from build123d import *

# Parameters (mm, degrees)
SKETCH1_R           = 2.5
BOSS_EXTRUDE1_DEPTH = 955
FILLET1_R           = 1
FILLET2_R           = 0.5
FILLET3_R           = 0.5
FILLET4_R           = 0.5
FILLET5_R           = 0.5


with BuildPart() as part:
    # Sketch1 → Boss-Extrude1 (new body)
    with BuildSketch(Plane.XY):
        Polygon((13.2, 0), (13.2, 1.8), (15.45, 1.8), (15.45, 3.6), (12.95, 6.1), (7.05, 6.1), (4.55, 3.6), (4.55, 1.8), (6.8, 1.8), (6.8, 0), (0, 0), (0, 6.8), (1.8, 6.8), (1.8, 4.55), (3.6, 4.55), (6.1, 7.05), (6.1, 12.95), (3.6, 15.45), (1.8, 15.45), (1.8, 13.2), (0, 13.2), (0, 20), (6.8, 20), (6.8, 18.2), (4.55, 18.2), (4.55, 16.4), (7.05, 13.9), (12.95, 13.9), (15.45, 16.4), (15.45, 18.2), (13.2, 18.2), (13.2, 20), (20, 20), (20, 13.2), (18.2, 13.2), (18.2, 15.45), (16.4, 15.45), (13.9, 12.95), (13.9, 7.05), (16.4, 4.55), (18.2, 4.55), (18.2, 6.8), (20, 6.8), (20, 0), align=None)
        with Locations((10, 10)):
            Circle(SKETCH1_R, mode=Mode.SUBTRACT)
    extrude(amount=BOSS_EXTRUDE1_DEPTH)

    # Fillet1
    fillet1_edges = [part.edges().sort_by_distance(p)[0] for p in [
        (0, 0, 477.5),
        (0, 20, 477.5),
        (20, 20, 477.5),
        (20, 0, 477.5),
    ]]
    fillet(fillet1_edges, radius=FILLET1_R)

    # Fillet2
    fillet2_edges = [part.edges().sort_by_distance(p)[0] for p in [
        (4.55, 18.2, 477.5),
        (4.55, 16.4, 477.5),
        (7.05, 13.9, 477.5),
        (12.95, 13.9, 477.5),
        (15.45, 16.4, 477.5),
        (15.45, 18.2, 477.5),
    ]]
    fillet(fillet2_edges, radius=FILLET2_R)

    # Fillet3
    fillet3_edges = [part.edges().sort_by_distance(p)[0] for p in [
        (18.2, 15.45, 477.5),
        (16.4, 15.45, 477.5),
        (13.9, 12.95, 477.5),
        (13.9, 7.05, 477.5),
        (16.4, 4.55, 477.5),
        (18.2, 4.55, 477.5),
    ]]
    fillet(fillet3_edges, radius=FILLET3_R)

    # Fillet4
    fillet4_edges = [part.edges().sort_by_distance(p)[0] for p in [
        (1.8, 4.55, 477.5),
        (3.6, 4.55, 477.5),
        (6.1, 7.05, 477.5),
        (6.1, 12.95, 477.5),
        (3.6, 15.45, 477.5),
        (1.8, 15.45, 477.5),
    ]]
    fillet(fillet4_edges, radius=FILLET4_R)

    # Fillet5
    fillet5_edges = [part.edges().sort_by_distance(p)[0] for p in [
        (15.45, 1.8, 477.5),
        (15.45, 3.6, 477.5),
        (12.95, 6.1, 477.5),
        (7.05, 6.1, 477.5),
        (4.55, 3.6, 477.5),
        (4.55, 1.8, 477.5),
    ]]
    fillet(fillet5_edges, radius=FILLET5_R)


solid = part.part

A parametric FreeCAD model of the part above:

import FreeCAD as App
import Part
import Sketcher
from FreeCAD import Vector


def edges_at(feature, points):
    """Names of the edges that pass closest to the given points."""
    edges = feature.Shape.Edges
    near = lambda p: min(range(len(edges)), key=lambda i: edges[i].distToShape(Part.Vertex(*p))[0])
    return sorted({f"Edge{near(p) + 1}" for p in points})

doc = App.newDocument("Part")
body = doc.addObject("PartDesign::Body", "Body")

# Sketch on XY plane
sketch1 = body.newObject("Sketcher::SketchObject", "Sketch")
sketch1.AttachmentSupport = (doc.getObject("XY_Plane"), [""])
sketch1.MapMode = "FlatFace"
sketch1.addGeometry(Part.LineSegment(Vector(13.2, 1.8, 0), Vector(13.2, 0, 0)), False)
sketch1.addGeometry(Part.LineSegment(Vector(13.2, 0, 0), Vector(20, 0, 0)), False)
sketch1.addGeometry(Part.LineSegment(Vector(20, 0, 0), Vector(20, 6.8, 0)), False)
sketch1.addGeometry(Part.LineSegment(Vector(20, 6.8, 0), Vector(18.2, 6.8, 0)), False)
sketch1.addGeometry(Part.LineSegment(Vector(18.2, 6.8, 0), Vector(18.2, 4.55, 0)), False)
sketch1.addGeometry(Part.LineSegment(Vector(18.2, 4.55, 0), Vector(16.4, 4.55, 0)), False)
sketch1.addGeometry(Part.LineSegment(Vector(16.4, 4.55, 0), Vector(13.9, 7.05, 0)), False)
sketch1.addGeometry(Part.LineSegment(Vector(13.9, 7.05, 0), Vector(13.9, 12.95, 0)), False)
sketch1.addGeometry(Part.LineSegment(Vector(13.9, 12.95, 0), Vector(16.4, 15.45, 0)), False)
sketch1.addGeometry(Part.LineSegment(Vector(16.4, 15.45, 0), Vector(18.2, 15.45, 0)), False)
sketch1.addGeometry(Part.LineSegment(Vector(18.2, 15.45, 0), Vector(18.2, 13.2, 0)), False)
sketch1.addGeometry(Part.LineSegment(Vector(18.2, 13.2, 0), Vector(20, 13.2, 0)), False)
sketch1.addGeometry(Part.LineSegment(Vector(20, 13.2, 0), Vector(20, 20, 0)), False)
sketch1.addGeometry(Part.LineSegment(Vector(20, 20, 0), Vector(13.2, 20, 0)), False)
sketch1.addGeometry(Part.LineSegment(Vector(13.2, 20, 0), Vector(13.2, 18.2, 0)), False)
sketch1.addGeometry(Part.LineSegment(Vector(13.2, 18.2, 0), Vector(15.45, 18.2, 0)), False)
sketch1.addGeometry(Part.LineSegment(Vector(15.45, 18.2, 0), Vector(15.45, 16.4, 0)), False)
sketch1.addGeometry(Part.LineSegment(Vector(15.45, 16.4, 0), Vector(12.95, 13.9, 0)), False)
sketch1.addGeometry(Part.LineSegment(Vector(12.95, 13.9, 0), Vector(7.05, 13.9, 0)), False)
sketch1.addGeometry(Part.LineSegment(Vector(7.05, 13.9, 0), Vector(4.55, 16.4, 0)), False)
sketch1.addGeometry(Part.LineSegment(Vector(4.55, 16.4, 0), Vector(4.55, 18.2, 0)), False)
sketch1.addGeometry(Part.LineSegment(Vector(4.55, 18.2, 0), Vector(6.8, 18.2, 0)), False)
sketch1.addGeometry(Part.LineSegment(Vector(6.8, 18.2, 0), Vector(6.8, 20, 0)), False)
sketch1.addGeometry(Part.LineSegment(Vector(6.8, 20, 0), Vector(0, 20, 0)), False)
sketch1.addGeometry(Part.LineSegment(Vector(0, 20, 0), Vector(0, 13.2, 0)), False)
sketch1.addGeometry(Part.LineSegment(Vector(0, 13.2, 0), Vector(1.8, 13.2, 0)), False)
sketch1.addGeometry(Part.LineSegment(Vector(1.8, 13.2, 0), Vector(1.8, 15.45, 0)), False)
sketch1.addGeometry(Part.LineSegment(Vector(1.8, 15.45, 0), Vector(3.6, 15.45, 0)), False)
sketch1.addGeometry(Part.LineSegment(Vector(3.6, 15.45, 0), Vector(6.1, 12.95, 0)), False)
sketch1.addGeometry(Part.LineSegment(Vector(6.1, 12.95, 0), Vector(6.1, 7.05, 0)), False)
sketch1.addGeometry(Part.LineSegment(Vector(6.1, 7.05, 0), Vector(3.6, 4.55, 0)), False)
sketch1.addGeometry(Part.LineSegment(Vector(3.6, 4.55, 0), Vector(1.8, 4.55, 0)), False)
sketch1.addGeometry(Part.LineSegment(Vector(1.8, 4.55, 0), Vector(1.8, 6.8, 0)), False)
sketch1.addGeometry(Part.LineSegment(Vector(1.8, 6.8, 0), Vector(0, 6.8, 0)), False)
sketch1.addGeometry(Part.LineSegment(Vector(0, 6.8, 0), Vector(0, 0, 0)), False)
sketch1.addGeometry(Part.LineSegment(Vector(0, 0, 0), Vector(6.8, 0, 0)), False)
sketch1.addGeometry(Part.LineSegment(Vector(6.8, 0, 0), Vector(6.8, 1.8, 0)), False)
sketch1.addGeometry(Part.LineSegment(Vector(6.8, 1.8, 0), Vector(4.55, 1.8, 0)), False)
sketch1.addGeometry(Part.LineSegment(Vector(4.55, 1.8, 0), Vector(4.55, 3.6, 0)), False)
sketch1.addGeometry(Part.LineSegment(Vector(4.55, 3.6, 0), Vector(7.05, 6.1, 0)), False)
sketch1.addGeometry(Part.LineSegment(Vector(7.05, 6.1, 0), Vector(12.95, 6.1, 0)), False)
sketch1.addGeometry(Part.LineSegment(Vector(12.95, 6.1, 0), Vector(15.45, 3.6, 0)), False)
sketch1.addGeometry(Part.LineSegment(Vector(15.45, 3.6, 0), Vector(15.45, 1.8, 0)), False)
sketch1.addGeometry(Part.LineSegment(Vector(15.45, 1.8, 0), Vector(13.2, 1.8, 0)), False)
sketch1.addGeometry(Part.Circle(Vector(10, 10, 0), Vector(0, 0, 1), 2.5), False)
sketch1.addConstraint(Sketcher.Constraint("Coincident", 0, 2, 1, 1))
sketch1.addConstraint(Sketcher.Constraint("Coincident", 1, 2, 2, 1))
sketch1.addConstraint(Sketcher.Constraint("Coincident", 2, 2, 3, 1))
sketch1.addConstraint(Sketcher.Constraint("Coincident", 3, 2, 4, 1))
sketch1.addConstraint(Sketcher.Constraint("Coincident", 4, 2, 5, 1))
sketch1.addConstraint(Sketcher.Constraint("Coincident", 5, 2, 6, 1))
sketch1.addConstraint(Sketcher.Constraint("Coincident", 6, 2, 7, 1))
sketch1.addConstraint(Sketcher.Constraint("Coincident", 7, 2, 8, 1))
sketch1.addConstraint(Sketcher.Constraint("Coincident", 8, 2, 9, 1))
sketch1.addConstraint(Sketcher.Constraint("Coincident", 9, 2, 10, 1))
sketch1.addConstraint(Sketcher.Constraint("Coincident", 10, 2, 11, 1))
sketch1.addConstraint(Sketcher.Constraint("Coincident", 11, 2, 12, 1))
sketch1.addConstraint(Sketcher.Constraint("Coincident", 12, 2, 13, 1))
sketch1.addConstraint(Sketcher.Constraint("Coincident", 13, 2, 14, 1))
sketch1.addConstraint(Sketcher.Constraint("Coincident", 14, 2, 15, 1))
sketch1.addConstraint(Sketcher.Constraint("Coincident", 15, 2, 16, 1))
sketch1.addConstraint(Sketcher.Constraint("Coincident", 16, 2, 17, 1))
sketch1.addConstraint(Sketcher.Constraint("Coincident", 17, 2, 18, 1))
sketch1.addConstraint(Sketcher.Constraint("Coincident", 18, 2, 19, 1))
sketch1.addConstraint(Sketcher.Constraint("Coincident", 19, 2, 20, 1))
sketch1.addConstraint(Sketcher.Constraint("Coincident", 20, 2, 21, 1))
sketch1.addConstraint(Sketcher.Constraint("Coincident", 21, 2, 22, 1))
sketch1.addConstraint(Sketcher.Constraint("Coincident", 22, 2, 23, 1))
sketch1.addConstraint(Sketcher.Constraint("Coincident", 23, 2, 24, 1))
sketch1.addConstraint(Sketcher.Constraint("Coincident", 24, 2, 25, 1))
sketch1.addConstraint(Sketcher.Constraint("Coincident", 25, 2, 26, 1))
sketch1.addConstraint(Sketcher.Constraint("Coincident", 26, 2, 27, 1))
sketch1.addConstraint(Sketcher.Constraint("Coincident", 27, 2, 28, 1))
sketch1.addConstraint(Sketcher.Constraint("Coincident", 28, 2, 29, 1))
sketch1.addConstraint(Sketcher.Constraint("Coincident", 29, 2, 30, 1))
sketch1.addConstraint(Sketcher.Constraint("Coincident", 30, 2, 31, 1))
sketch1.addConstraint(Sketcher.Constraint("Coincident", 31, 2, 32, 1))
sketch1.addConstraint(Sketcher.Constraint("Coincident", 32, 2, 33, 1))
sketch1.addConstraint(Sketcher.Constraint("Coincident", 33, 2, 34, 1))
sketch1.addConstraint(Sketcher.Constraint("Coincident", 34, 2, 35, 1))
sketch1.addConstraint(Sketcher.Constraint("Coincident", 35, 2, 36, 1))
sketch1.addConstraint(Sketcher.Constraint("Coincident", 36, 2, 37, 1))
sketch1.addConstraint(Sketcher.Constraint("Coincident", 37, 2, 38, 1))
sketch1.addConstraint(Sketcher.Constraint("Coincident", 38, 2, 39, 1))
sketch1.addConstraint(Sketcher.Constraint("Coincident", 39, 2, 40, 1))
sketch1.addConstraint(Sketcher.Constraint("Coincident", 40, 2, 41, 1))
sketch1.addConstraint(Sketcher.Constraint("Coincident", 41, 2, 42, 1))
sketch1.addConstraint(Sketcher.Constraint("Coincident", 42, 2, 43, 1))
sketch1.addConstraint(Sketcher.Constraint("Coincident", 43, 2, 0, 1))
sketch1.addConstraint(Sketcher.Constraint("Vertical", 0))
sketch1.addConstraint(Sketcher.Constraint("Horizontal", 1))
sketch1.addConstraint(Sketcher.Constraint("Vertical", 2))
sketch1.addConstraint(Sketcher.Constraint("Horizontal", 3))
sketch1.addConstraint(Sketcher.Constraint("Vertical", 4))
sketch1.addConstraint(Sketcher.Constraint("Horizontal", 5))
sketch1.addConstraint(Sketcher.Constraint("Vertical", 7))
sketch1.addConstraint(Sketcher.Constraint("Horizontal", 9))
sketch1.addConstraint(Sketcher.Constraint("Vertical", 10))
sketch1.addConstraint(Sketcher.Constraint("Horizontal", 11))
sketch1.addConstraint(Sketcher.Constraint("Vertical", 12))
sketch1.addConstraint(Sketcher.Constraint("Horizontal", 13))
sketch1.addConstraint(Sketcher.Constraint("Vertical", 14))
sketch1.addConstraint(Sketcher.Constraint("Horizontal", 15))
sketch1.addConstraint(Sketcher.Constraint("Vertical", 16))
sketch1.addConstraint(Sketcher.Constraint("Horizontal", 18))
sketch1.addConstraint(Sketcher.Constraint("Vertical", 20))
sketch1.addConstraint(Sketcher.Constraint("Horizontal", 21))
sketch1.addConstraint(Sketcher.Constraint("Vertical", 22))
sketch1.addConstraint(Sketcher.Constraint("Horizontal", 23))
sketch1.addConstraint(Sketcher.Constraint("Vertical", 24))
sketch1.addConstraint(Sketcher.Constraint("Horizontal", 25))
sketch1.addConstraint(Sketcher.Constraint("Vertical", 26))
sketch1.addConstraint(Sketcher.Constraint("Horizontal", 27))
sketch1.addConstraint(Sketcher.Constraint("Vertical", 29))
sketch1.addConstraint(Sketcher.Constraint("Horizontal", 31))
sketch1.addConstraint(Sketcher.Constraint("Vertical", 32))
sketch1.addConstraint(Sketcher.Constraint("Horizontal", 33))
sketch1.addConstraint(Sketcher.Constraint("Vertical", 34))
sketch1.addConstraint(Sketcher.Constraint("Horizontal", 35))
sketch1.addConstraint(Sketcher.Constraint("Vertical", 36))
sketch1.addConstraint(Sketcher.Constraint("Horizontal", 37))
sketch1.addConstraint(Sketcher.Constraint("Vertical", 38))
sketch1.addConstraint(Sketcher.Constraint("Horizontal", 40))
sketch1.addConstraint(Sketcher.Constraint("Vertical", 42))
sketch1.addConstraint(Sketcher.Constraint("Horizontal", 43))
sketch1.addConstraint(Sketcher.Constraint("Coincident", 34, 2, -1, 1))
sketch1.addConstraint(Sketcher.Constraint("PointOnObject", 0, 2, -1))
sketch1.addConstraint(Sketcher.Constraint("PointOnObject", 23, 2, -2))
sketch1.addConstraint(Sketcher.Constraint("Perpendicular", 6, 8))
sketch1.addConstraint(Sketcher.Constraint("Parallel", 8, 17))
sketch1.addConstraint(Sketcher.Constraint("Perpendicular", 17, 19))
sketch1.addConstraint(Sketcher.Constraint("Parallel", 19, 28))
sketch1.addConstraint(Sketcher.Constraint("Perpendicular", 28, 30))
sketch1.addConstraint(Sketcher.Constraint("Parallel", 30, 39))
sketch1.addConstraint(Sketcher.Constraint("Perpendicular", 39, 41))
sketch1.addConstraint(Sketcher.Constraint("Horizontal", 16, 2, 19, 2))
sketch1.addConstraint(Sketcher.Constraint("Horizontal", 15, 2, 20, 2))
sketch1.addConstraint(Sketcher.Constraint("Horizontal", 13, 2, 22, 2))
sketch1.addConstraint(Sketcher.Constraint("Horizontal", 11, 2, 24, 2))
sketch1.addConstraint(Sketcher.Constraint("Horizontal", 9, 2, 26, 2))
sketch1.addConstraint(Sketcher.Constraint("Horizontal", 7, 2, 28, 2))
sketch1.addConstraint(Sketcher.Constraint("Horizontal", 6, 2, 29, 2))
sketch1.addConstraint(Sketcher.Constraint("Horizontal", 5, 2, 30, 2))
sketch1.addConstraint(Sketcher.Constraint("Horizontal", 3, 2, 32, 2))
sketch1.addConstraint(Sketcher.Constraint("Horizontal", 38, 2, 41, 2))
sketch1.addConstraint(Sketcher.Constraint("Horizontal", 37, 2, 42, 2))
sketch1.addConstraint(Sketcher.Constraint("Vertical", 5, 2, 8, 2))
sketch1.addConstraint(Sketcher.Constraint("Vertical", 4, 2, 9, 2))
sketch1.addConstraint(Sketcher.Constraint("Vertical", 2, 2, 11, 2))
sketch1.addConstraint(Sketcher.Constraint("Vertical", 0, 2, 13, 2))
sketch1.addConstraint(Sketcher.Constraint("Vertical", 27, 2, 30, 2))
sketch1.addConstraint(Sketcher.Constraint("Vertical", 26, 2, 31, 2))
sketch1.addConstraint(Sketcher.Constraint("Vertical", 22, 2, 35, 2))
sketch1.addConstraint(Sketcher.Constraint("Vertical", 20, 2, 37, 2))
sketch1.addConstraint(Sketcher.Constraint("Vertical", 18, 2, 39, 2))
sketch1.addConstraint(Sketcher.Constraint("Vertical", 17, 2, 40, 2))
sketch1.addConstraint(Sketcher.Constraint("Equal", 3, 5))
sketch1.addConstraint(Sketcher.Constraint("Equal", 15, 21))
sketch1.addConstraint(Sketcher.Constraint("Equal", 13, 23))
sketch1.addConstraint(Sketcher.Constraint("Equal", 11, 25))
sketch1.addConstraint(Sketcher.Constraint("Equal", 25, 27))
sketch1.addConstraint(Sketcher.Constraint("Equal", 33, 0))
sketch1.addConstraint(Sketcher.Constraint("Equal", 35, 2))
sketch1.addConstraint(Sketcher.Constraint("Equal", 43, 4))
sketch1.addConstraint(Sketcher.Constraint("Equal", 40, 7))
sketch1.addConstraint(Sketcher.Constraint("Equal", 4, 10))
sketch1.addConstraint(Sketcher.Constraint("Equal", 2, 12))
sketch1.addConstraint(Sketcher.Constraint("Equal", 0, 14))
sketch1.addConstraint(Sketcher.Constraint("Equal", 14, 16))
sketch1.addConstraint(Sketcher.Constraint("Equal", 36, 38))
sketch1.addConstraint(Sketcher.Constraint("Equal", 8, 17))
sketch1.addConstraint(Sketcher.Constraint("Diameter", 44, 5.0))
sketch1.addConstraint(Sketcher.Constraint("DistanceX", 1, 1, 1, 2, 6.8))
sketch1.addConstraint(Sketcher.Constraint("DistanceX", 3, 2, 3, 1, 1.8))
sketch1.addConstraint(Sketcher.Constraint("DistanceX", 18, 2, 18, 1, 5.9))
sketch1.addConstraint(Sketcher.Constraint("DistanceX", -1, 1, 44, 3, 10.0))
sketch1.addConstraint(Sketcher.Constraint("DistanceY", -1, 1, 44, 3, 10.0))
sketch1.addConstraint(Sketcher.Constraint("DistanceX", -1, 1, 1, 2, 20.0))
sketch1.addConstraint(Sketcher.Constraint("DistanceX", 15, 1, 15, 2, 2.25))
pad1 = body.newObject("PartDesign::Pad", "Pad")
pad1.Profile = sketch1
pad1.Length = 955
doc.recompute()

fillet = body.newObject("PartDesign::Fillet", "Fillet")
fillet.Base = (pad1, edges_at(pad1, [
    (0, 0, 477.5),
    (0, 20, 477.5),
    (20, 20, 477.5),
    (20, 0, 477.5),
]))
fillet.Radius = 1
doc.recompute()

fillet2 = body.newObject("PartDesign::Fillet", "Fillet001")
fillet2.Base = (fillet, edges_at(fillet, [
    (4.55, 18.2, 477.5),
    (4.55, 16.4, 477.5),
    (7.05, 13.9, 477.5),
    (12.95, 13.9, 477.5),
    (15.45, 16.4, 477.5),
    (15.45, 18.2, 477.5),
]))
fillet2.Radius = 0.5
doc.recompute()

fillet3 = body.newObject("PartDesign::Fillet", "Fillet002")
fillet3.Base = (fillet2, edges_at(fillet2, [
    (18.2, 15.45, 477.5),
    (16.4, 15.45, 477.5),
    (13.9, 12.95, 477.5),
    (13.9, 7.05, 477.5),
    (16.4, 4.55, 477.5),
    (18.2, 4.55, 477.5),
]))
fillet3.Radius = 0.5
doc.recompute()

fillet4 = body.newObject("PartDesign::Fillet", "Fillet003")
fillet4.Base = (fillet3, edges_at(fillet3, [
    (1.8, 4.55, 477.5),
    (3.6, 4.55, 477.5),
    (6.1, 7.05, 477.5),
    (6.1, 12.95, 477.5),
    (3.6, 15.45, 477.5),
    (1.8, 15.45, 477.5),
]))
fillet4.Radius = 0.5
doc.recompute()

fillet5 = body.newObject("PartDesign::Fillet", "Fillet004")
fillet5.Base = (fillet4, edges_at(fillet4, [
    (15.45, 1.8, 477.5),
    (15.45, 3.6, 477.5),
    (12.95, 6.1, 477.5),
    (7.05, 6.1, 477.5),
    (4.55, 3.6, 477.5),
    (4.55, 1.8, 477.5),
]))
fillet5.Radius = 0.5

doc.recompute()
